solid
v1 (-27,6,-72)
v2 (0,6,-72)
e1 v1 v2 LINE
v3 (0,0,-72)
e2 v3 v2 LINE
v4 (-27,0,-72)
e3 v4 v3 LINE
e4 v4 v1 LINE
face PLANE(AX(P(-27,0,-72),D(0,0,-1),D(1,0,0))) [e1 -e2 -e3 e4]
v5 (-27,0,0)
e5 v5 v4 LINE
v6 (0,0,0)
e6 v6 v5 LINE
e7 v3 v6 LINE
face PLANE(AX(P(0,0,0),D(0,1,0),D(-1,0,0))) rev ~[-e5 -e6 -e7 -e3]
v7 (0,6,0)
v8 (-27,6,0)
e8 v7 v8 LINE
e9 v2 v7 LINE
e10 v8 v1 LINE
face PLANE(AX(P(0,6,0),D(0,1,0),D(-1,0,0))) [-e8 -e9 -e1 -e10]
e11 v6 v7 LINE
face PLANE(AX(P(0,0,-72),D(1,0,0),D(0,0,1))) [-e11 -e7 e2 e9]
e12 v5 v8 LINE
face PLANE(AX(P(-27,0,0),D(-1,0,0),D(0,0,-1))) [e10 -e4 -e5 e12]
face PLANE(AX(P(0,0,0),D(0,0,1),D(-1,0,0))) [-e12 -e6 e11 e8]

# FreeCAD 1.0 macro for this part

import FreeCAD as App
import Part
import Sketcher
from FreeCAD import Vector


def add_polygon(sketch, points):
    """Adds a closed chain of lines whose ends are joined by coincident constraints."""
    first, n = sketch.GeometryCount, len(points)
    for a, b in zip(points, points[1:] + points[:1]):
        sketch.addGeometry(Part.LineSegment(App.Vector(*a, 0), App.Vector(*b, 0)), False)
    for i in range(n):
        sketch.addConstraint(Sketcher.Constraint("Coincident", first + i, 2, first + (i + 1) % n, 1))

doc = App.newDocument("Part")
body = doc.addObject("PartDesign::Body", "Body")

# Sketch on XZ plane
sketch1 = doc.addObject("Sketcher::SketchObject", "Sketch")
body.addObject(sketch1)
sketch1.AttachmentSupport = (doc.XZ_Plane, [""])
sketch1.MapMode = "FlatFace"
add_polygon(sketch1, [(-27, 0), (0, 0), (0, -72), (-27, -72)])  # lines 0-3
sketch1.addConstraint([
    Sketcher.Constraint("Horizontal", 0),
    Sketcher.Constraint("Vertical", 1),
    Sketcher.Constraint("Horizontal", 2),
    Sketcher.Constraint("Vertical", 3),
    Sketcher.Constraint("Coincident", 0, 2, -1, 1),
    Sketcher.Constraint("DistanceX", 0, 1, 0, 2, 27.0),
    Sketcher.Constraint("DistanceY", 1, 2, 1, 1, 72.0),
])
pad1 = doc.addObject("PartDesign::Pad", "Pad")
body.addObject(pad1)
pad1.Profile = sketch1
pad1.Length = 6
pad1.Reversed = True

doc.recompute()
